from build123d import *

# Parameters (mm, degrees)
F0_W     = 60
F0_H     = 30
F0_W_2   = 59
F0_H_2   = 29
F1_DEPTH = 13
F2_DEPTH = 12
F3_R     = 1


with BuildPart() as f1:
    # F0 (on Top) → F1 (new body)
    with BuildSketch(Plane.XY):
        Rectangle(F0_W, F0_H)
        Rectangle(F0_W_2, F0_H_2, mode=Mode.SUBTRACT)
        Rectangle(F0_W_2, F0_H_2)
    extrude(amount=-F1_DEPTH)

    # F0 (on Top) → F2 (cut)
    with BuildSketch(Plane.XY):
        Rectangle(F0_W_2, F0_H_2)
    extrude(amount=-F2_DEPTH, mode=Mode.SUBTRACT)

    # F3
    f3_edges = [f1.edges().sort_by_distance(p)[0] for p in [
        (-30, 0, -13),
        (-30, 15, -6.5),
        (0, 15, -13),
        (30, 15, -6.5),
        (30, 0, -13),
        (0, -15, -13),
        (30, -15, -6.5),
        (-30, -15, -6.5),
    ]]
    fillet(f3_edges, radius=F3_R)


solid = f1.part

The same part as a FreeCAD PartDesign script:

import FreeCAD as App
import Part
import Sketcher


def edges_at(feature, points):
    """Names of the edges that pass closest to the given points."""
    edges = feature.Shape.Edges
    near = lambda p: min(range(len(edges)), key=lambda i: edges[i].distToShape(Part.Vertex(*p))[0])
    return sorted({f"Edge{near(p) + 1}" for p in points})


def add_polygon(sketch, points):
    """Adds a closed chain of lines whose ends are joined by coincident constraints."""
    first, n = sketch.GeometryCount, len(points)
    for a, b in zip(points, points[1:] + points[:1]):
        sketch.addGeometry(Part.LineSegment(App.Vector(*a, 0), App.Vector(*b, 0)), False)
    for i in range(n):
        sketch.addConstraint(Sketcher.Constraint("Coincident", first + i, 2, first + (i + 1) % n, 1))

doc = App.newDocument("Part")
body = doc.addObject("PartDesign::Body", "Body")

sketch1 = body.newObject("Sketcher::SketchObject", "Sketch")
sketch1.AttachmentSupport = (doc.getObject("XY_Plane"), [""])
sketch1.MapMode = "FlatFace"
add_polygon(sketch1, [(-30, 15), (-30, -15), (30, -15), (30, 15)])
sketch1.addConstraint(Sketcher.Constraint("Vertical", 0))
sketch1.addConstraint(Sketcher.Constraint("Horizontal", 1))
sketch1.addConstraint(Sketcher.Constraint("Vertical", 2))
sketch1.addConstraint(Sketcher.Constraint("Horizontal", 3))
sketch1.addConstraint(Sketcher.Constraint("Symmetric", 0, 2, 2, 2, -1, 1))
sketch1.addConstraint(Sketcher.Constraint("DistanceX", 1, 1, 1, 2, 60.0))
sketch1.addConstraint(Sketcher.Constraint("DistanceY", 0, 2, 0, 1, 30.0))
pad1 = body.newObject("PartDesign::Pad", "Pad")
pad1.Profile = sketch1
pad1.Length = 13
pad1.Reversed = True

sketch2 = body.newObject("Sketcher::SketchObject", "Sketch001")
sketch2.AttachmentSupport = (doc.getObject("XY_Plane"), [""])
sketch2.MapMode = "FlatFace"
add_polygon(sketch2, [(-30, 14), (-30, -14), (30, -14), (30, 14)])
sketch2.addConstraint(Sketcher.Constraint("Vertical", 0))
sketch2.addConstraint(Sketcher.Constraint("Horizontal", 1))
sketch2.addConstraint(Sketcher.Constraint("Vertical", 2))
sketch2.addConstraint(Sketcher.Constraint("Horizontal", 3))
sketch2.addConstraint(Sketcher.Constraint("Symmetric", 0, 2, 2, 2, -1, 1))
sketch2.addConstraint(Sketcher.Constraint("DistanceX", 1, 1, 1, 2, 59.0))
sketch2.addConstraint(Sketcher.Constraint("DistanceY", 0, 2, 0, 1, 29.0))
pocket1 = body.newObject("PartDesign::Pocket", "Pocket")
pocket1.Profile = sketch2
pocket1.Length = 12
doc.recompute()

fillet = body.newObject("PartDesign::Fillet", "Fillet")
fillet.Base = (pocket1, edges_at(pocket1, [
    (-30, 0, -13),
    (-30, 15, -6.5),
    (0, 15, -13),
    (30, 15, -6.5),
    (30, 0, -13),
    (0, -15, -13),
    (30, -15, -6.5),
    (-30, -15, -6.5),
]))
fillet.Radius = 1

doc.recompute()
